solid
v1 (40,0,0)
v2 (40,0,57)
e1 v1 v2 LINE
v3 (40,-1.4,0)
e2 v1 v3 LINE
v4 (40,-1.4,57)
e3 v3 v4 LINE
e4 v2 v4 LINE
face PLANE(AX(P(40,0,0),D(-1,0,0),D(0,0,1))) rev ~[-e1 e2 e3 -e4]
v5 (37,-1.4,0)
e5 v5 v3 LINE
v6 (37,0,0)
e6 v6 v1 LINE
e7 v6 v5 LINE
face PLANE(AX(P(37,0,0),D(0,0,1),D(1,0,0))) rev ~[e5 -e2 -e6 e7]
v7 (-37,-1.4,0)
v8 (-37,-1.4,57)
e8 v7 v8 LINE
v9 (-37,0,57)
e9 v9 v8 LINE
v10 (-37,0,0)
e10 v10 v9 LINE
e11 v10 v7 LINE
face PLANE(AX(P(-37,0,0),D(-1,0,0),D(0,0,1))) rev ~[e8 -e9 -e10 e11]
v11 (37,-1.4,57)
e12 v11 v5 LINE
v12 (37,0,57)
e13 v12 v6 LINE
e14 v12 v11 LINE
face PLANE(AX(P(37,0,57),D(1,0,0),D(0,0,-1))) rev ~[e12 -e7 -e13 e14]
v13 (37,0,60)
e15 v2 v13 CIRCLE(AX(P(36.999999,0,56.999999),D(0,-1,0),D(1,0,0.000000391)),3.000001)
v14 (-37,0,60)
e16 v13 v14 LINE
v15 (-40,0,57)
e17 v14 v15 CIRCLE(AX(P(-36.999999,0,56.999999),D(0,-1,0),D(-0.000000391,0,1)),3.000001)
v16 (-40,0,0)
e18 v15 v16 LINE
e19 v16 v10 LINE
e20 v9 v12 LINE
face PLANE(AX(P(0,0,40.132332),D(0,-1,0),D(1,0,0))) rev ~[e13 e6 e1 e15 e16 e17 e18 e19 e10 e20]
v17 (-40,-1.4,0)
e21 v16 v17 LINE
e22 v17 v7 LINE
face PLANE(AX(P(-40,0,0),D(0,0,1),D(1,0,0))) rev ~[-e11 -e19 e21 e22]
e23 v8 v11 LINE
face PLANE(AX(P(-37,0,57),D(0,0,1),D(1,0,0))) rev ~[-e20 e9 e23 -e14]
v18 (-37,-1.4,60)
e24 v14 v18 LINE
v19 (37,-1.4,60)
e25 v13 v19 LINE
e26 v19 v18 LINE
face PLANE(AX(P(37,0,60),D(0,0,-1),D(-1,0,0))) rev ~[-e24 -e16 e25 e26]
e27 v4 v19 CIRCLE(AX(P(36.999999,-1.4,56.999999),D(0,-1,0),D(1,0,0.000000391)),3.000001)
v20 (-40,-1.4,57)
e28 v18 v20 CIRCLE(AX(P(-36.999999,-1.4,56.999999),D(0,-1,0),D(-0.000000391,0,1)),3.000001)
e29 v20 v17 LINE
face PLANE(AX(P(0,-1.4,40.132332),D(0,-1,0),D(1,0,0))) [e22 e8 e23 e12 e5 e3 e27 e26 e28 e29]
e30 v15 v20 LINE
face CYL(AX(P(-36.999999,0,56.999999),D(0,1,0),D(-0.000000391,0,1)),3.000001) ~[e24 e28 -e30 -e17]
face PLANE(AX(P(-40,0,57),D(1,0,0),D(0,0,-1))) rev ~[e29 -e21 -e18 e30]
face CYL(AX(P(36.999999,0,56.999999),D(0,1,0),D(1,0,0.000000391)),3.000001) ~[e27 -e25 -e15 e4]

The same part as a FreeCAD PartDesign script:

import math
import FreeCAD as App
import Part
import Sketcher

V = App.Vector
Q = App.Units.Quantity

doc = App.newDocument("Part")
body = doc.addObject("PartDesign::Body", "Body")

# Sketch on XZ plane
sketch1 = body.newObject("Sketcher::SketchObject", "Sketch")
sketch1.AttachmentSupport = (doc.getObject("XZ_Plane"), [""])
sketch1.MapMode = "FlatFace"
sketch1.addGeometry([
    Part.LineSegment(V(37, 60, 0), V(-37, 60, 0)),  # 0
    Part.ArcOfCircle(Part.Circle(V(-37, 57, 0), V(0, 0, 1), 3), math.radians(90), math.radians(180)),  # 1
    Part.LineSegment(V(-40, 57, 0), V(-40, 0, 0)),  # 2
    Part.LineSegment(V(-40, 0, 0), V(-37, 0, 0)),  # 3
    Part.LineSegment(V(-37, 0, 0), V(-37, 57, 0)),  # 4
    Part.LineSegment(V(-37, 57, 0), V(37, 57, 0)),  # 5
    Part.LineSegment(V(37, 57, 0), V(37, 0, 0)),  # 6
    Part.LineSegment(V(37, 0, 0), V(40, 0, 0)),  # 7
    Part.LineSegment(V(40, 0, 0), V(40, 57, 0)),  # 8
    Part.ArcOfCircle(Part.Circle(V(37, 57, 0), V(0, 0, 1), 3), math.radians(0), math.radians(90)),  # 9
], False)
sketch1.addConstraint([
    Sketcher.Constraint("Tangent", 0, 2, 1, 1),
    Sketcher.Constraint("Tangent", 1, 2, 2, 1),
    Sketcher.Constraint("Coincident", 2, 2, 3, 1),
    Sketcher.Constraint("Coincident", 3, 2, 4, 1),
    Sketcher.Constraint("Coincident", 4, 2, 5, 1),
    Sketcher.Constraint("Coincident", 5, 2, 6, 1),
    Sketcher.Constraint("Coincident", 6, 2, 7, 1),
    Sketcher.Constraint("Coincident", 7, 2, 8, 1),
    Sketcher.Constraint("Tangent", 8, 2, 9, 1),
    Sketcher.Constraint("Tangent", 9, 2, 0, 1),
    Sketcher.Constraint("Horizontal", 0),
    Sketcher.Constraint("Vertical", 2),
    Sketcher.Constraint("Horizontal", 3),
    Sketcher.Constraint("Vertical", 4),
    Sketcher.Constraint("Horizontal", 5),
    Sketcher.Constraint("Vertical", 6),
    Sketcher.Constraint("Horizontal", 7),
    Sketcher.Constraint("Vertical", 8),
    Sketcher.Constraint("Coincident", 4, 2, 1, 3),
    Sketcher.Constraint("Coincident", 5, 2, 9, 3),
    Sketcher.Constraint("Symmetric", 3, 2, 6, 2, -1, 1),
    Sketcher.Constraint("PointOnObject", 2, 2, -1),
    Sketcher.Constraint("Radius", 1, Q("3.000001 mm")),
    Sketcher.Constraint("DistanceX", 0, 2, 0, 1, Q("74 mm")),
    Sketcher.Constraint("DistanceY", 2, 2, 2, 1, Q("57 mm")),
])
pad1 = body.newObject("PartDesign::Pad", "Pad")
pad1.Profile = sketch1
pad1.Length = 1.4

doc.recompute()
